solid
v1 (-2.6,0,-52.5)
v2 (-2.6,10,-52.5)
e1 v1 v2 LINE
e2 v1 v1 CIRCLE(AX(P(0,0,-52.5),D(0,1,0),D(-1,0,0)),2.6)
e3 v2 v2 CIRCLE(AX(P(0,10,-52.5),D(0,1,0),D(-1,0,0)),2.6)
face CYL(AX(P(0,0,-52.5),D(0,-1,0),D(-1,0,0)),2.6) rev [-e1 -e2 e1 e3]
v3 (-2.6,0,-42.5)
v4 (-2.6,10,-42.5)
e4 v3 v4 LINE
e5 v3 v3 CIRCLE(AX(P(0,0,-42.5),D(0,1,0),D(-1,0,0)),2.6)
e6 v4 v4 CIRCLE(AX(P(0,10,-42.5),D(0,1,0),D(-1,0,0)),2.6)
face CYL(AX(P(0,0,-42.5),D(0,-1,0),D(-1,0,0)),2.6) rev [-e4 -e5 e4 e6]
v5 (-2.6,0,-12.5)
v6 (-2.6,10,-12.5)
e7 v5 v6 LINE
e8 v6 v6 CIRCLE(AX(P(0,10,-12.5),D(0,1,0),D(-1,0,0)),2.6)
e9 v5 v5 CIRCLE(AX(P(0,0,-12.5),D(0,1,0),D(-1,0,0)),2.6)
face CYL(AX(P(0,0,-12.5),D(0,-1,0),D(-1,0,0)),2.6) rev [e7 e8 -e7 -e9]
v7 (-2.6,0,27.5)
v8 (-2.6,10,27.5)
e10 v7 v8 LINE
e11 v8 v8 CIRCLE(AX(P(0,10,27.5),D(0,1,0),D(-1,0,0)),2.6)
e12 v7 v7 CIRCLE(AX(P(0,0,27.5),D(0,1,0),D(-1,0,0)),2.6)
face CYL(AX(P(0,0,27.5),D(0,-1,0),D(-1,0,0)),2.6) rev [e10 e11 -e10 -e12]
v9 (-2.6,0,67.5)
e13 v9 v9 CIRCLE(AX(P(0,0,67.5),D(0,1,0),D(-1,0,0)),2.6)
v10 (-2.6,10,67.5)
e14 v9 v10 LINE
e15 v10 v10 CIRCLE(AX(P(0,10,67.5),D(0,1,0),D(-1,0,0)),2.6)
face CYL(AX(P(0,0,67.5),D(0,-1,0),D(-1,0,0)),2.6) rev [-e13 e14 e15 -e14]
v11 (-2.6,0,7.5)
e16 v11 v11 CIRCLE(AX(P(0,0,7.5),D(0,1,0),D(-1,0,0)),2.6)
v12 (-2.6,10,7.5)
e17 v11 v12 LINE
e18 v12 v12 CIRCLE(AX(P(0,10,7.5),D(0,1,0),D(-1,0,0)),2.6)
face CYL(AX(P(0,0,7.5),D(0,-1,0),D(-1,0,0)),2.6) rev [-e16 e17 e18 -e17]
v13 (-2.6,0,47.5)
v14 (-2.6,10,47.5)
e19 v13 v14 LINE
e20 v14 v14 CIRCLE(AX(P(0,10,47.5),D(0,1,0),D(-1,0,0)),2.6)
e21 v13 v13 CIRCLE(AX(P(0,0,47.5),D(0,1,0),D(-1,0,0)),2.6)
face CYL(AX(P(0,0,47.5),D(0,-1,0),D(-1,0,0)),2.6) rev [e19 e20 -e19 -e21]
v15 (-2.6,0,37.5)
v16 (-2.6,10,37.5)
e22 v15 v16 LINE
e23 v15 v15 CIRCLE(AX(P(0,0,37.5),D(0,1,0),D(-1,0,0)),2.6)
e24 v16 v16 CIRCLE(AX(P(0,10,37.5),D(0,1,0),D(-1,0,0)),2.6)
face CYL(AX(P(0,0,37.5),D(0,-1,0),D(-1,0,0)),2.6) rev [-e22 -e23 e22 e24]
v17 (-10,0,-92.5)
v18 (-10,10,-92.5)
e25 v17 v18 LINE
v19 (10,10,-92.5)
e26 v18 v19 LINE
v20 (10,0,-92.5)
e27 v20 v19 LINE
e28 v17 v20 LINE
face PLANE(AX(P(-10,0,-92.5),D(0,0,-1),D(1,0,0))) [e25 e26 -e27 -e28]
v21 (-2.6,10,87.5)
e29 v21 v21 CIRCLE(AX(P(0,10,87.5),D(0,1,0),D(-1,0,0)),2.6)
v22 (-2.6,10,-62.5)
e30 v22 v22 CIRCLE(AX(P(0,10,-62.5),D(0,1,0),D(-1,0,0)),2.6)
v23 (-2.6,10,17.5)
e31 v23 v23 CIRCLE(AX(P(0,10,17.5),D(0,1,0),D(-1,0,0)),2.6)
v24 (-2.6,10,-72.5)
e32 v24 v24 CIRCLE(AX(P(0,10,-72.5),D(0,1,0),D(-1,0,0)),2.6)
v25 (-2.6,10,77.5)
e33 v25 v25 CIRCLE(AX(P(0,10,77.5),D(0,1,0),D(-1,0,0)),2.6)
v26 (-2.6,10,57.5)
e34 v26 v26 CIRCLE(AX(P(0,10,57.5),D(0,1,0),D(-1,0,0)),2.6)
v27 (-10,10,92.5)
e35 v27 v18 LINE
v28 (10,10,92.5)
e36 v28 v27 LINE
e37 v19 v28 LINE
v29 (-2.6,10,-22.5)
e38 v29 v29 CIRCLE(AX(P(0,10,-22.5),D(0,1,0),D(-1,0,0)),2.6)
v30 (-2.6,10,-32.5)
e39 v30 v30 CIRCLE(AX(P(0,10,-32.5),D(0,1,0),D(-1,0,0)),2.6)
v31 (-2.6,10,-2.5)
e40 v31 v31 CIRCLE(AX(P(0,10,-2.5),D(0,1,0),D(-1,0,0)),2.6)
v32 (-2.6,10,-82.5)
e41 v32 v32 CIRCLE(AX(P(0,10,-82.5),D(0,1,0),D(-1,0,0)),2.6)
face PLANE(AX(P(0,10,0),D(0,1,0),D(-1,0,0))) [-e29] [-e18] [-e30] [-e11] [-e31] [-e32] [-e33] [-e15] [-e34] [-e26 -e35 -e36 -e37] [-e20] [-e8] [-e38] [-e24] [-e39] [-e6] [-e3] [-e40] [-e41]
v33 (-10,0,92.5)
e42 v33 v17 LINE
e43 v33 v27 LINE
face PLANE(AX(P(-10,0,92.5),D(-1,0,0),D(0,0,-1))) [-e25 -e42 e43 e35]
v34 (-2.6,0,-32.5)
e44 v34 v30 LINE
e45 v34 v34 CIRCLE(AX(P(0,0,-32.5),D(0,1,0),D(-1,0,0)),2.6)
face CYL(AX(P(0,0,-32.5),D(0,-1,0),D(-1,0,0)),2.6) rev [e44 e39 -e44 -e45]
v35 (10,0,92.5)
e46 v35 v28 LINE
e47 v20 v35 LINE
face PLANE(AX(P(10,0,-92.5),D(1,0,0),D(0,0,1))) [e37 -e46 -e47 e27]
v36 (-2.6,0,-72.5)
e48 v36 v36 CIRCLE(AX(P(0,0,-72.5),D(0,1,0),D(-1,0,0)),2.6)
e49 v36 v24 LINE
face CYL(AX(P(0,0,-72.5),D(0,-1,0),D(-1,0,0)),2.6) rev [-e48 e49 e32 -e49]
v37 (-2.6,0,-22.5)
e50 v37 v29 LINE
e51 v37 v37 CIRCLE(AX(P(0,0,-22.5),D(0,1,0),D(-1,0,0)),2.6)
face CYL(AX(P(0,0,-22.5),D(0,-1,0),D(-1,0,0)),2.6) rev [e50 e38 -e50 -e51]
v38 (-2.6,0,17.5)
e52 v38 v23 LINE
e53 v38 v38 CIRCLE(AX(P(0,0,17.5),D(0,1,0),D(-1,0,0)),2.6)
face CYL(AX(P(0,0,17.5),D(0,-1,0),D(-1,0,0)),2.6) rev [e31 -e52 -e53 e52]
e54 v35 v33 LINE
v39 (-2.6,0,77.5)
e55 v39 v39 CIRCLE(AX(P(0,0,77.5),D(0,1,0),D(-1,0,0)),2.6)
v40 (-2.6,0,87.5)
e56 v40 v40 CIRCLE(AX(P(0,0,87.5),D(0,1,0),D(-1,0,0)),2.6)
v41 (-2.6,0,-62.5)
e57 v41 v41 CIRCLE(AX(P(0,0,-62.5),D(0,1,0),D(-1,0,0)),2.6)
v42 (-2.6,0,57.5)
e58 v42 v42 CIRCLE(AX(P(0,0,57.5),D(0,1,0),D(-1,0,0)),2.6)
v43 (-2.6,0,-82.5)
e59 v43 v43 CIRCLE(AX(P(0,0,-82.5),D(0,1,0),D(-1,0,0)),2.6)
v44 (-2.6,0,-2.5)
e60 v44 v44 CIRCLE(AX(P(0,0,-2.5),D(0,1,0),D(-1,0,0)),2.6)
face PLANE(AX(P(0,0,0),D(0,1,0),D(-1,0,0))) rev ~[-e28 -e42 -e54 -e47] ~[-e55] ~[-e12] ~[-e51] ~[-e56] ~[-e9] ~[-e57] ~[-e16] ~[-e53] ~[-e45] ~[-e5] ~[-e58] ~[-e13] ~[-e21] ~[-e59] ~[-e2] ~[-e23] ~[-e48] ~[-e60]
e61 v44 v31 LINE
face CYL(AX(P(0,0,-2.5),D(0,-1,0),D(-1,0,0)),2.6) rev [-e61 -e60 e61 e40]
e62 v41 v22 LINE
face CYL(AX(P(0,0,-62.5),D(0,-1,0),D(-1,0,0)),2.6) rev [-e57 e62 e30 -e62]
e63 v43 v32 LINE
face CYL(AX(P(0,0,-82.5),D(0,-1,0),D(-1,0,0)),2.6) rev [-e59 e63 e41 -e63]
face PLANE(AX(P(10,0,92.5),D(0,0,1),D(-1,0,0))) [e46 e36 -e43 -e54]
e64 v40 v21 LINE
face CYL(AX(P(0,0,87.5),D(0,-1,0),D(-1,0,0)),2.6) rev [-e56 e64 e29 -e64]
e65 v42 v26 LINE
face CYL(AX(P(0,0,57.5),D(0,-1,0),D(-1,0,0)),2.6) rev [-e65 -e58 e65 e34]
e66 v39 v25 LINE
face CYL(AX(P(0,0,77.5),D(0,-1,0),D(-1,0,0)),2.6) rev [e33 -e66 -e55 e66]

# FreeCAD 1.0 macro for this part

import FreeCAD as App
import Part
import Sketcher

V = App.Vector
Q = App.Units.Quantity

doc = App.newDocument("Part")
body = doc.addObject("PartDesign::Body", "Body")

# Sketch on XZ plane
sketch1 = body.newObject("Sketcher::SketchObject", "Sketch")
sketch1.AttachmentSupport = (doc.getObject("XZ_Plane"), [""])
sketch1.MapMode = "FlatFace"
sketch1.addGeometry(Part.LineSegment(V(-10, 92.5, 0), V(10, 92.5, 0)), False)
sketch1.addGeometry(Part.LineSegment(V(10, 92.5, 0), V(10, -92.5, 0)), False)
sketch1.addGeometry(Part.LineSegment(V(10, -92.5, 0), V(-10, -92.5, 0)), False)
sketch1.addGeometry(Part.LineSegment(V(-10, -92.5, 0), V(-10, 92.5, 0)), False)
sketch1.addGeometry(Part.Circle(V(0, -82.5, 0), V(0, 0, 1), 2.6), False)
sketch1.addGeometry(Part.Circle(V(0, -72.5, 0), V(0, 0, 1), 2.6), False)
sketch1.addGeometry(Part.Circle(V(0, -62.5, 0), V(0, 0, 1), 2.6), False)
sketch1.addGeometry(Part.Circle(V(0, -52.5, 0), V(0, 0, 1), 2.6), False)
sketch1.addGeometry(Part.Circle(V(0, -42.5, 0), V(0, 0, 1), 2.6), False)
sketch1.addGeometry(Part.Circle(V(0, -32.5, 0), V(0, 0, 1), 2.6), False)
sketch1.addGeometry(Part.Circle(V(0, -22.5, 0), V(0, 0, 1), 2.6), False)
sketch1.addGeometry(Part.Circle(V(0, -12.5, 0), V(0, 0, 1), 2.6), False)
sketch1.addGeometry(Part.Circle(V(0, -2.5, 0), V(0, 0, 1), 2.6), False)
sketch1.addGeometry(Part.Circle(V(0, 7.5, 0), V(0, 0, 1), 2.6), False)
sketch1.addGeometry(Part.Circle(V(0, 17.5, 0), V(0, 0, 1), 2.6), False)
sketch1.addGeometry(Part.Circle(V(0, 27.5, 0), V(0, 0, 1), 2.6), False)
sketch1.addGeometry(Part.Circle(V(0, 37.5, 0), V(0, 0, 1), 2.6), False)
sketch1.addGeometry(Part.Circle(V(0, 47.5, 0), V(0, 0, 1), 2.6), False)
sketch1.addGeometry(Part.Circle(V(0, 57.5, 0), V(0, 0, 1), 2.6), False)
sketch1.addGeometry(Part.Circle(V(0, 67.5, 0), V(0, 0, 1), 2.6), False)
sketch1.addGeometry(Part.Circle(V(0, 77.5, 0), V(0, 0, 1), 2.6), False)
sketch1.addGeometry(Part.Circle(V(0, 87.5, 0), V(0, 0, 1), 2.6), False)
sketch1.addConstraint(Sketcher.Constraint("Coincident", 0, 2, 1, 1))
sketch1.addConstraint(Sketcher.Constraint("Coincident", 1, 2, 2, 1))
sketch1.addConstraint(Sketcher.Constraint("Coincident", 2, 2, 3, 1))
sketch1.addConstraint(Sketcher.Constraint("Coincident", 3, 2, 0, 1))
sketch1.addConstraint(Sketcher.Constraint("Horizontal", 0))
sketch1.addConstraint(Sketcher.Constraint("Vertical", 1))
sketch1.addConstraint(Sketcher.Constraint("Horizontal", 2))
sketch1.addConstraint(Sketcher.Constraint("Vertical", 3))
sketch1.addConstraint(Sketcher.Constraint("Equal", 4, 5))
sketch1.addConstraint(Sketcher.Constraint("Equal", 5, 6))
sketch1.addConstraint(Sketcher.Constraint("Equal", 6, 7))
sketch1.addConstraint(Sketcher.Constraint("Equal", 7, 8))
sketch1.addConstraint(Sketcher.Constraint("Equal", 8, 9))
sketch1.addConstraint(Sketcher.Constraint("Equal", 9, 10))
sketch1.addConstraint(Sketcher.Constraint("Equal", 10, 11))
sketch1.addConstraint(Sketcher.Constraint("Equal", 11, 12))
sketch1.addConstraint(Sketcher.Constraint("Equal", 12, 13))
sketch1.addConstraint(Sketcher.Constraint("Equal", 13, 14))
sketch1.addConstraint(Sketcher.Constraint("Equal", 14, 15))
sketch1.addConstraint(Sketcher.Constraint("Equal", 15, 16))
sketch1.addConstraint(Sketcher.Constraint("Equal", 16, 17))
sketch1.addConstraint(Sketcher.Constraint("Equal", 17, 18))
sketch1.addConstraint(Sketcher.Constraint("Equal", 18, 19))
sketch1.addConstraint(Sketcher.Constraint("Equal", 19, 20))
sketch1.addConstraint(Sketcher.Constraint("Equal", 20, 21))
sketch1.addConstraint(Sketcher.Constraint("Symmetric", 0, 2, 2, 2, -1, 1))
sketch1.addConstraint(Sketcher.Constraint("PointOnObject", 4, 3, -2))
sketch1.addConstraint(Sketcher.Constraint("PointOnObject", 5, 3, -2))
sketch1.addConstraint(Sketcher.Constraint("PointOnObject", 6, 3, -2))
sketch1.addConstraint(Sketcher.Constraint("PointOnObject", 7, 3, -2))
sketch1.addConstraint(Sketcher.Constraint("PointOnObject", 8, 3, -2))
sketch1.addConstraint(Sketcher.Constraint("PointOnObject", 9, 3, -2))
sketch1.addConstraint(Sketcher.Constraint("PointOnObject", 10, 3, -2))
sketch1.addConstraint(Sketcher.Constraint("PointOnObject", 11, 3, -2))
sketch1.addConstraint(Sketcher.Constraint("PointOnObject", 12, 3, -2))
sketch1.addConstraint(Sketcher.Constraint("PointOnObject", 13, 3, -2))
sketch1.addConstraint(Sketcher.Constraint("PointOnObject", 14, 3, -2))
sketch1.addConstraint(Sketcher.Constraint("PointOnObject", 15, 3, -2))
sketch1.addConstraint(Sketcher.Constraint("PointOnObject", 16, 3, -2))
sketch1.addConstraint(Sketcher.Constraint("PointOnObject", 17, 3, -2))
sketch1.addConstraint(Sketcher.Constraint("PointOnObject", 18, 3, -2))
sketch1.addConstraint(Sketcher.Constraint("PointOnObject", 19, 3, -2))
sketch1.addConstraint(Sketcher.Constraint("PointOnObject", 20, 3, -2))
sketch1.addConstraint(Sketcher.Constraint("PointOnObject", 21, 3, -2))
sketch1.addConstraint(Sketcher.Constraint("Diameter", 4, Q("5.2 mm")))
sketch1.addConstraint(Sketcher.Constraint("DistanceX", 0, 1, 0, 2, Q("20 mm")))
sketch1.addConstraint(Sketcher.Constraint("DistanceY", 1, 2, 1, 1, Q("185 mm")))
sketch1.addConstraint(Sketcher.Constraint("DistanceY", 4, 3, 5, 3, Q("10 mm")))
sketch1.addConstraint(Sketcher.Constraint("DistanceY", 5, 3, 6, 3, Q("10 mm")))
sketch1.addConstraint(Sketcher.Constraint("DistanceY", 6, 3, 7, 3, Q("10 mm")))
sketch1.addConstraint(Sketcher.Constraint("DistanceY", 7, 3, 8, 3, Q("10 mm")))
sketch1.addConstraint(Sketcher.Constraint("DistanceY", 8, 3, 9, 3, Q("10 mm")))
sketch1.addConstraint(Sketcher.Constraint("DistanceY", 9, 3, 10, 3, Q("10 mm")))
sketch1.addConstraint(Sketcher.Constraint("DistanceY", 10, 3, 11, 3, Q("10 mm")))
sketch1.addConstraint(Sketcher.Constraint("DistanceY", 11, 3, 12, 3, Q("10 mm")))
sketch1.addConstraint(Sketcher.Constraint("DistanceY", 12, 3, 13, 3, Q("10 mm")))
sketch1.addConstraint(Sketcher.Constraint("DistanceY", 13, 3, 14, 3, Q("10 mm")))
sketch1.addConstraint(Sketcher.Constraint("DistanceY", 14, 3, 15, 3, Q("10 mm")))
sketch1.addConstraint(Sketcher.Constraint("DistanceY", 15, 3, 16, 3, Q("10 mm")))
sketch1.addConstraint(Sketcher.Constraint("DistanceY", 16, 3, 17, 3, Q("10 mm")))
sketch1.addConstraint(Sketcher.Constraint("DistanceY", 17, 3, 18, 3, Q("10 mm")))
sketch1.addConstraint(Sketcher.Constraint("DistanceY", 18, 3, 19, 3, Q("10 mm")))
sketch1.addConstraint(Sketcher.Constraint("DistanceY", 19, 3, 20, 3, Q("10 mm")))
sketch1.addConstraint(Sketcher.Constraint("DistanceY", 20, 3, 21, 3, Q("10 mm")))
sketch1.addConstraint(Sketcher.Constraint("DistanceY", 1, 2, 4, 3, Q("10 mm")))
pad1 = body.newObject("PartDesign::Pad", "Pad")
pad1.Profile = sketch1
pad1.Length = 10
pad1.Reversed = True

doc.recompute()
